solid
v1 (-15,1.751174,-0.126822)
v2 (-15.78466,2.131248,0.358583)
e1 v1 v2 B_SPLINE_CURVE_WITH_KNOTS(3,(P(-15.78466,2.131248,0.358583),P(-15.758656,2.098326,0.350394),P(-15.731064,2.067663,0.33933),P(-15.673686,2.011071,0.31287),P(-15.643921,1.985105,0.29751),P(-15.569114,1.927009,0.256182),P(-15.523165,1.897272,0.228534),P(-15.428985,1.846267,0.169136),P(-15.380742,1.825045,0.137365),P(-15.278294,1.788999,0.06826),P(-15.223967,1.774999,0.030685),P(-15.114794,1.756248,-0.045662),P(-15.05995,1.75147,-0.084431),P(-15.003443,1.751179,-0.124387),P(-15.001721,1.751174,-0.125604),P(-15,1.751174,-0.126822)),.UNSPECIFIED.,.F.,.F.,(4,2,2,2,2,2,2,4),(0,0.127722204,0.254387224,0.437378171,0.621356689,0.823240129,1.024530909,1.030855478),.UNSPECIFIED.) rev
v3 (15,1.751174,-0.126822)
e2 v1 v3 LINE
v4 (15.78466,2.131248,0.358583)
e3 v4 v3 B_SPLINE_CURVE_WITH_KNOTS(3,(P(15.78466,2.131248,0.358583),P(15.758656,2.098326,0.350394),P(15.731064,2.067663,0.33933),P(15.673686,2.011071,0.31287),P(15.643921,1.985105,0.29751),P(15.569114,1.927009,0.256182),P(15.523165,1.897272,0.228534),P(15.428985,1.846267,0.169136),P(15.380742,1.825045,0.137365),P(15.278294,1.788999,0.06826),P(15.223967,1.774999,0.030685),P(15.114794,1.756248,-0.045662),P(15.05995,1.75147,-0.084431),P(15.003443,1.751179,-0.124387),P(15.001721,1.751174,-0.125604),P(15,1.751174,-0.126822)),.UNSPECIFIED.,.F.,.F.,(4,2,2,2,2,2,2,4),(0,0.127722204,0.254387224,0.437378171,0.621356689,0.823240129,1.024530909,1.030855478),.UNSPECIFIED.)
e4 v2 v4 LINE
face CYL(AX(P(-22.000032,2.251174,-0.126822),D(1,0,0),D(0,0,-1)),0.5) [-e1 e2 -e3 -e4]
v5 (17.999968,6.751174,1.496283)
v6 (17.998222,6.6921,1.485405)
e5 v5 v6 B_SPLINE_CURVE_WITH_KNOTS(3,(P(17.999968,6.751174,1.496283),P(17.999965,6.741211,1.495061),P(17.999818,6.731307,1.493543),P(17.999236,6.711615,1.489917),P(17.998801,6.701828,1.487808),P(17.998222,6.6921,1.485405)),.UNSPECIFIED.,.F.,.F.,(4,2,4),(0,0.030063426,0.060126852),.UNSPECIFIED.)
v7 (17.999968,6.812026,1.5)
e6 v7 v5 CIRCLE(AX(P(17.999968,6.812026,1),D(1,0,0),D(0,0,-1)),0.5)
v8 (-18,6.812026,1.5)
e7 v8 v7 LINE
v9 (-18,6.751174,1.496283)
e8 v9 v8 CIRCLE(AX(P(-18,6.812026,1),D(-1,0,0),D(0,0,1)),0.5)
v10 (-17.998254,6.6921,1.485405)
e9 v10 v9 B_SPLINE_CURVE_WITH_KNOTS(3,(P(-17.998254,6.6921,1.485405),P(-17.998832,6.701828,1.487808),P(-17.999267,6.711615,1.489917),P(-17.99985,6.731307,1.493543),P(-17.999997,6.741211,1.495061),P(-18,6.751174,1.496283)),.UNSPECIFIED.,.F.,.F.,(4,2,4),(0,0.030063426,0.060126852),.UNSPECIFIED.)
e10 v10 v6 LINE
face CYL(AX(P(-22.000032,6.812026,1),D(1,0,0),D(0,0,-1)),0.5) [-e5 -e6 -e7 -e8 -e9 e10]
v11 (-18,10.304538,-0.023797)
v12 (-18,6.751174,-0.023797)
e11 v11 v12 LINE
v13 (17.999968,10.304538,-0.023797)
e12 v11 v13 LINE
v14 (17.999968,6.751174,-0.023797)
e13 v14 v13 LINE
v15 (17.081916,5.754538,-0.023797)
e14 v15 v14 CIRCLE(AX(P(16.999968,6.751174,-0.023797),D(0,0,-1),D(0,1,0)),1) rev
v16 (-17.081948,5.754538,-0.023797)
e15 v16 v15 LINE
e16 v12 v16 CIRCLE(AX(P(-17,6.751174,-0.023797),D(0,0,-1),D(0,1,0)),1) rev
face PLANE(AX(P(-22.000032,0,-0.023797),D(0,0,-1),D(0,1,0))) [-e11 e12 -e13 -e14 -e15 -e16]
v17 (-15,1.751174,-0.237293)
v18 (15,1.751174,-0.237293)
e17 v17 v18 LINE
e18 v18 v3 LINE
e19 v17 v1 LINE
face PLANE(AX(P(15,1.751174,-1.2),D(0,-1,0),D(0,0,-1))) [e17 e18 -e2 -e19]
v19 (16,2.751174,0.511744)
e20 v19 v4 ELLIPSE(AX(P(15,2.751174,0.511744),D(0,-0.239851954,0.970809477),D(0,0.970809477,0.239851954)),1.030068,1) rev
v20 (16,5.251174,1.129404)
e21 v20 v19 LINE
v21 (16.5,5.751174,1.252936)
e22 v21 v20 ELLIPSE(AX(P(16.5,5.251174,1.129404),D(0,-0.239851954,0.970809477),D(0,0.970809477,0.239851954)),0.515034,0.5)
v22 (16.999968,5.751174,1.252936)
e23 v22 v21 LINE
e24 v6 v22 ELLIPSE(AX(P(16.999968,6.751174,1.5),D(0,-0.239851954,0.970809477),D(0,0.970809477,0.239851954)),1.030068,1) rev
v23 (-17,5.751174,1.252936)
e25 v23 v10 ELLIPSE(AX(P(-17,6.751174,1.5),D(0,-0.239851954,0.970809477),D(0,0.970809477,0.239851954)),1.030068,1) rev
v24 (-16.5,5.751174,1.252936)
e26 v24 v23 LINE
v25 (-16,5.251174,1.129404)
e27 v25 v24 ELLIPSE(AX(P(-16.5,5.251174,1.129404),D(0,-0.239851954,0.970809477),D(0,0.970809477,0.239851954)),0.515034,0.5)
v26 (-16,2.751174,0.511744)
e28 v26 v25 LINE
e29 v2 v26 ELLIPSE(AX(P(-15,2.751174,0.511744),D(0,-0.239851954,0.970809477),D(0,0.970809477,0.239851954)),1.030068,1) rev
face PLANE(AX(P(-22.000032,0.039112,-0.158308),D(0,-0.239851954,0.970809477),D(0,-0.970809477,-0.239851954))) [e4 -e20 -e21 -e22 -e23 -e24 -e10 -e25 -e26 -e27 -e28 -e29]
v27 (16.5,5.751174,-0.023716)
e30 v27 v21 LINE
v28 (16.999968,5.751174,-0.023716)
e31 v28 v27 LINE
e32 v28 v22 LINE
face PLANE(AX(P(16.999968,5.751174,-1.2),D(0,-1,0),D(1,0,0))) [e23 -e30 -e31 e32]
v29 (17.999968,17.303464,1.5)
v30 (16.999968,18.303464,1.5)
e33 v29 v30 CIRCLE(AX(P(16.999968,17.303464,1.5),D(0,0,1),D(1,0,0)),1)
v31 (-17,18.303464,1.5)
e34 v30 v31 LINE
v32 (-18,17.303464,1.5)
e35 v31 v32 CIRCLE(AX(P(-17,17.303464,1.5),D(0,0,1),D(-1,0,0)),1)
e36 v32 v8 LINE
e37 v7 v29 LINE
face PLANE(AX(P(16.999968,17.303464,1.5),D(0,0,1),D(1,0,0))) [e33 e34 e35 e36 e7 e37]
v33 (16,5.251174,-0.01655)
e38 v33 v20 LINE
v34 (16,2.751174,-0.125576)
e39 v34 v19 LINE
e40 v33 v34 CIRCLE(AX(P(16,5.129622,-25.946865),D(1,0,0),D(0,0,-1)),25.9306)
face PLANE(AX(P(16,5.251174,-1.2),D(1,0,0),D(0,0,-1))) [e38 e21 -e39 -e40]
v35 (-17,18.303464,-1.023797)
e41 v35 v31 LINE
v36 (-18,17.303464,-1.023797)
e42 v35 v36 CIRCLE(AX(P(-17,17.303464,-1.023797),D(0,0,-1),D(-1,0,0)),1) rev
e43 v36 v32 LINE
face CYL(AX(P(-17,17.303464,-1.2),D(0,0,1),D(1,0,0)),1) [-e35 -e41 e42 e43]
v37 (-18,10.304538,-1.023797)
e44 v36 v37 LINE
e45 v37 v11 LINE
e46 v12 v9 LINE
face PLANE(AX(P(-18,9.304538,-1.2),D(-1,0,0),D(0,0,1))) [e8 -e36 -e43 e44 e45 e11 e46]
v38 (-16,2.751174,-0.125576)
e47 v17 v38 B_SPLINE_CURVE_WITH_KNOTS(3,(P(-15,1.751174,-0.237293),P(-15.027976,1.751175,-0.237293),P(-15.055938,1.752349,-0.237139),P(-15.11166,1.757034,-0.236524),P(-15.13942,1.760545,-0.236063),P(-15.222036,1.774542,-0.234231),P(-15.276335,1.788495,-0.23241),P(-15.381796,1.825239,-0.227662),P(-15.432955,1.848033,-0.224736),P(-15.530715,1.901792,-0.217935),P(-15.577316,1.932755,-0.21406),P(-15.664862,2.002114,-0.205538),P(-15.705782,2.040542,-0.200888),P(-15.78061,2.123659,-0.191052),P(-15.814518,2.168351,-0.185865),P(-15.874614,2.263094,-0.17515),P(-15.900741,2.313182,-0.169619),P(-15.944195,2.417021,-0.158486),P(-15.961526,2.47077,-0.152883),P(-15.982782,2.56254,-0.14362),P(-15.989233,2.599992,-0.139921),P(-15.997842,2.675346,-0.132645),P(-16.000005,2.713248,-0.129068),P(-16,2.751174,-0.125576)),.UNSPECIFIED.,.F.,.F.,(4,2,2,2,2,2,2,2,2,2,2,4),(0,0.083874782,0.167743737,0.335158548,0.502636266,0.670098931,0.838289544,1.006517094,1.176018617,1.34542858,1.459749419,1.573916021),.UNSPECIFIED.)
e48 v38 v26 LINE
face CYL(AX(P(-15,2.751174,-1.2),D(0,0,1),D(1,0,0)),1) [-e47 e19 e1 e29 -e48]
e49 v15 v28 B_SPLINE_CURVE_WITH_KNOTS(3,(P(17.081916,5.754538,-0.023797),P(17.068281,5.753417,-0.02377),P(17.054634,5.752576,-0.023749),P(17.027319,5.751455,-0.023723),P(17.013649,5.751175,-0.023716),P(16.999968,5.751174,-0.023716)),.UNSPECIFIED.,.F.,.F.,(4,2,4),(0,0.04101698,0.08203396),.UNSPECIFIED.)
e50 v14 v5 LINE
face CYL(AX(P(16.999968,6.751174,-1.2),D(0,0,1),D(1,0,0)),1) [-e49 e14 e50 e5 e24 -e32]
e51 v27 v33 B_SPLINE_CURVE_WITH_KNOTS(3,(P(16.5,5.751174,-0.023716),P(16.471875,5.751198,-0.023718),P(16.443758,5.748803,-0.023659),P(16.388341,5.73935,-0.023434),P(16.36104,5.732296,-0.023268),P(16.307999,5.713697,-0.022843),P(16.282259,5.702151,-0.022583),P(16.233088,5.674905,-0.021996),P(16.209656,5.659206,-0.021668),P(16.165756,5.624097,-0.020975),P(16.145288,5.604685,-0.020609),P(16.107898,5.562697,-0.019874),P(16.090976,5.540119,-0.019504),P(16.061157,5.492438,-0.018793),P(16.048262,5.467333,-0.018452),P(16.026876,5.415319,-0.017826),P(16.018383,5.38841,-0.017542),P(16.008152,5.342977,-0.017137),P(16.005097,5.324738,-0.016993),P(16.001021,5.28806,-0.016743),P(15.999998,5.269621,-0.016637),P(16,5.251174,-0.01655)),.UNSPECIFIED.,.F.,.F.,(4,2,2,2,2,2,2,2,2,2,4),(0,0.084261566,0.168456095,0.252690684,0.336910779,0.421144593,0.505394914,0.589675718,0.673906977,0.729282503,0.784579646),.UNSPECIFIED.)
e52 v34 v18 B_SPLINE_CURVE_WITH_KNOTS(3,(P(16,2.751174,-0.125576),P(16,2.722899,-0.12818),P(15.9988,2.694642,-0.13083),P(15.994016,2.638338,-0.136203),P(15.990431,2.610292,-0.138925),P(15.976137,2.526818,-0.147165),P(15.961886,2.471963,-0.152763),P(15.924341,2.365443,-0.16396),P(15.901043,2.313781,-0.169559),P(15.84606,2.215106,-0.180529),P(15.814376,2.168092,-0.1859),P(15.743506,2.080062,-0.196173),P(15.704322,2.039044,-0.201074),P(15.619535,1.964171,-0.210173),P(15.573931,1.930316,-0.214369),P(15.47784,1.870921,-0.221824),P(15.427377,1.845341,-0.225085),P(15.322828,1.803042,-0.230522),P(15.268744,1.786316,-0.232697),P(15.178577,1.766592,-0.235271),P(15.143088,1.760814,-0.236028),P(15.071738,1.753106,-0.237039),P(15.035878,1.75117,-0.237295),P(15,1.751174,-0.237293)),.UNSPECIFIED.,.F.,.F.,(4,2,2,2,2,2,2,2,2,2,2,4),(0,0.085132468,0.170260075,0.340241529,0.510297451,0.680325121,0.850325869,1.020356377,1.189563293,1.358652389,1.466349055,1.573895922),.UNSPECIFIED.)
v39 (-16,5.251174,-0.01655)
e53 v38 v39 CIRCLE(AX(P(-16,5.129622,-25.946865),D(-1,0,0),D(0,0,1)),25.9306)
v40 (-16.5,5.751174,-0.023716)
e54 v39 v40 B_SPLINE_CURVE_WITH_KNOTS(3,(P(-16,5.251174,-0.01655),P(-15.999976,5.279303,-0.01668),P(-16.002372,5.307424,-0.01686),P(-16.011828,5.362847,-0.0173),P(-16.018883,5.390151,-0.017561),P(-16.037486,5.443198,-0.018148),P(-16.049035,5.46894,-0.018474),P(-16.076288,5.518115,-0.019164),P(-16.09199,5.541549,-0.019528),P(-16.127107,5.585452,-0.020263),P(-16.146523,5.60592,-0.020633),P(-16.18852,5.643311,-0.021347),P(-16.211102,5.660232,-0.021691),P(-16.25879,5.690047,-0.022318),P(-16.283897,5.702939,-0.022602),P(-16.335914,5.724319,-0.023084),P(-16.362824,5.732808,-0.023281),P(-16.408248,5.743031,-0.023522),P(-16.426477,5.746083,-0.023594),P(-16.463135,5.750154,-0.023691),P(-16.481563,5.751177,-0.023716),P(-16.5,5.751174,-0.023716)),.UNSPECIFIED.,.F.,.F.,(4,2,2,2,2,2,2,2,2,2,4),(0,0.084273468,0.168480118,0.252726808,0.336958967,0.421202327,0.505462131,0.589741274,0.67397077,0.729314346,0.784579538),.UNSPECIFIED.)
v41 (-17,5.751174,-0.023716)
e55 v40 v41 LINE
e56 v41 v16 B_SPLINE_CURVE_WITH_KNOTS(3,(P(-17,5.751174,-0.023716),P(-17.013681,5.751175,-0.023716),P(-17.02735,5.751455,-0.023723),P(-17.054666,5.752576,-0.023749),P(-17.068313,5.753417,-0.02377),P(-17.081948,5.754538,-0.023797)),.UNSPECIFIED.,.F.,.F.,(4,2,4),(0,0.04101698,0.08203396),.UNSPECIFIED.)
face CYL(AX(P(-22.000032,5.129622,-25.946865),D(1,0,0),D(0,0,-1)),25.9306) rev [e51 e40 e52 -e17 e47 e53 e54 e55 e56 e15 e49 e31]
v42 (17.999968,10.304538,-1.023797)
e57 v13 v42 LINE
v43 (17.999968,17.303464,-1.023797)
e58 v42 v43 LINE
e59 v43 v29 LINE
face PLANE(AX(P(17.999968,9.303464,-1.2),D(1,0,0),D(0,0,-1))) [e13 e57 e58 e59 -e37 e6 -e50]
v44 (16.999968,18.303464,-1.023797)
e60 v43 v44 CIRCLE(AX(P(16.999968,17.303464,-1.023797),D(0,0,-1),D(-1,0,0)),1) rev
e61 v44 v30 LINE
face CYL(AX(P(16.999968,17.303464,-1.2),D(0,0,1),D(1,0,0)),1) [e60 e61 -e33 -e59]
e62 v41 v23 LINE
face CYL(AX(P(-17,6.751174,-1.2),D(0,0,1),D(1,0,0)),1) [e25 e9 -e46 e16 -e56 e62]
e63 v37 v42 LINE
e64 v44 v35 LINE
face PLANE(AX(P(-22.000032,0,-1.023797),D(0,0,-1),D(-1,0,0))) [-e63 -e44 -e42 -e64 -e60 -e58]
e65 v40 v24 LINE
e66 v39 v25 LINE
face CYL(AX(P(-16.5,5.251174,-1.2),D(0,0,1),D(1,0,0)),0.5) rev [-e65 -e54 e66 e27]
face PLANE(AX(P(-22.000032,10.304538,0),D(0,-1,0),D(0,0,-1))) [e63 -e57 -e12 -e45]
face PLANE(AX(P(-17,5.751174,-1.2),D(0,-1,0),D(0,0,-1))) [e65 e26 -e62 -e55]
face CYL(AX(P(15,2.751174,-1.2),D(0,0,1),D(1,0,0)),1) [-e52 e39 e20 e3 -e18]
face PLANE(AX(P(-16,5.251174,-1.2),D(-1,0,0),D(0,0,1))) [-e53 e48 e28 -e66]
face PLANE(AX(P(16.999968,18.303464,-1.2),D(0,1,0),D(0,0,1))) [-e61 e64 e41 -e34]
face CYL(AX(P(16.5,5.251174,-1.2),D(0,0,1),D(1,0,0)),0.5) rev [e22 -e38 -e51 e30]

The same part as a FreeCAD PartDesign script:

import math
import FreeCAD as App
import Part
import Sketcher
from FreeCAD import Vector

doc = App.newDocument("Part")
params = doc.addObject("Spreadsheet::Sheet", "Params")
for row, (alias, value) in enumerate([
    ("sketch1_radius", "1 mm"),
    ("sketch1_radius2", "0.5 mm"),
    ("sketch1_width", "30 mm"),
    ("sketch1_width2", "0.5 mm"),
    ("sketch1_height", "2.5 mm"),
    ("pad1_length", "1.5 mm"),
    ("pad1_length2", "1.2 mm"),
    ("sketch2_radius", "0.5 mm"),
    ("sketch2_height", "1 mm"),
    ("sketch2_width", "4.55 mm"),
    ("pocket1_length", "40 mm"),
], start=1):
    params.set(f"A{row}", alias)
    params.set(f"B{row}", "=" + value)
    params.setAlias(f"B{row}", alias)

body = doc.addObject("PartDesign::Body", "Body")

sketch1 = body.newObject("Sketcher::SketchObject", "Sketch")
sketch1.AttachmentSupport = (doc.getObject("XY_Plane"), [""])
sketch1.MapMode = "FlatFace"
sketch1.addGeometry([
    Part.ArcOfCircle(Part.Circle(Vector(-17, 17.3, 0), Vector(0, 0, 1), 1), math.radians(90), math.radians(180)),
    Part.LineSegment(Vector(-18, 17.3, 0), Vector(-18, 6.75, 0)),
    Part.ArcOfCircle(Part.Circle(Vector(-17, 6.75, 0), Vector(0, 0, 1), 1), math.radians(-180), math.radians(-90)),
    Part.LineSegment(Vector(-17, 5.75, 0), Vector(-16.5, 5.75, 0)),
    Part.ArcOfCircle(Part.Circle(Vector(-16.5, 5.25, 0), Vector(0, 0, 1), 0.5), math.radians(0), math.radians(90)),
    Part.LineSegment(Vector(-16, 5.25, 0), Vector(-16, 2.75, 0)),
    Part.ArcOfCircle(Part.Circle(Vector(-15, 2.75, 0), Vector(0, 0, 1), 1), math.radians(-180), math.radians(-90)),
    Part.LineSegment(Vector(-15, 1.75, 0), Vector(15, 1.75, 0)),
    Part.ArcOfCircle(Part.Circle(Vector(15, 2.75, 0), Vector(0, 0, 1), 1), math.radians(-90), math.radians(0)),
    Part.LineSegment(Vector(16, 2.75, 0), Vector(16, 5.25, 0)),
    Part.ArcOfCircle(Part.Circle(Vector(16.5, 5.25, 0), Vector(0, 0, 1), 0.5), math.radians(90), math.radians(180)),
    Part.LineSegment(Vector(16.5, 5.75, 0), Vector(17, 5.75, 0)),
    Part.ArcOfCircle(Part.Circle(Vector(17, 6.75, 0), Vector(0, 0, 1), 1), math.radians(-90), math.radians(0)),
    Part.LineSegment(Vector(18, 6.75, 0), Vector(18, 17.3, 0)),
    Part.ArcOfCircle(Part.Circle(Vector(17, 17.3, 0), Vector(0, 0, 1), 1), math.radians(0), math.radians(90)),
    Part.LineSegment(Vector(17, 18.3, 0), Vector(-17, 18.3, 0)),
], False)
sketch1.addConstraint([
    Sketcher.Constraint("Tangent", 0, 2, 1, 1),
    Sketcher.Constraint("Tangent", 1, 2, 2, 1),
    Sketcher.Constraint("Tangent", 2, 2, 3, 1),
    Sketcher.Constraint("Tangent", 3, 2, 4, 2),
    Sketcher.Constraint("Tangent", 4, 1, 5, 1),
    Sketcher.Constraint("Tangent", 5, 2, 6, 1),
    Sketcher.Constraint("Tangent", 6, 2, 7, 1),
    Sketcher.Constraint("Tangent", 7, 2, 8, 1),
    Sketcher.Constraint("Tangent", 8, 2, 9, 1),
    Sketcher.Constraint("Tangent", 9, 2, 10, 2),
    Sketcher.Constraint("Tangent", 10, 1, 11, 1),
    Sketcher.Constraint("Tangent", 11, 2, 12, 1),
    Sketcher.Constraint("Tangent", 12, 2, 13, 1),
    Sketcher.Constraint("Tangent", 13, 2, 14, 1),
    Sketcher.Constraint("Tangent", 14, 2, 15, 1),
    Sketcher.Constraint("Tangent", 15, 2, 0, 1),
    Sketcher.Constraint("Vertical", 1),
    Sketcher.Constraint("Horizontal", 3),
    Sketcher.Constraint("Vertical", 5),
    Sketcher.Constraint("Horizontal", 7),
    Sketcher.Constraint("Vertical", 9),
    Sketcher.Constraint("Horizontal", 11),
    Sketcher.Constraint("Vertical", 13),
    Sketcher.Constraint("Horizontal", 15),
    Sketcher.Constraint("Equal", 0, 2),
    Sketcher.Constraint("Equal", 2, 6),
    Sketcher.Constraint("Equal", 6, 8),
    Sketcher.Constraint("Equal", 4, 10),
    Sketcher.Constraint("Equal", 8, 12),
    Sketcher.Constraint("Equal", 12, 14),
    Sketcher.Constraint("Symmetric", 4, 3, 10, 3, -2),
    Sketcher.Constraint("Radius", 0, 1.0),
    Sketcher.Constraint("Radius", 4, 0.5),
    Sketcher.Constraint("DistanceX", 7, 1, 7, 2, 30.0),
    Sketcher.Constraint("DistanceX", 3, 1, 3, 2, 0.5),
    Sketcher.Constraint("DistanceY", 5, 2, 5, 1, 2.5),
    Sketcher.Constraint("DistanceX", 11, 1, 11, 2, 0.499968),
    Sketcher.Constraint("DistanceY", 1, 2, 1, 1, 10.55229),
    Sketcher.Constraint("DistanceY", -1, 1, 0, 3, 17.303464),
])
sketch1.setExpression("Constraints[31]", "Params.sketch1_radius")
sketch1.setExpression("Constraints[32]", "Params.sketch1_radius2")
sketch1.setExpression("Constraints[33]", "Params.sketch1_width")
sketch1.setExpression("Constraints[34]", "Params.sketch1_width2")
sketch1.setExpression("Constraints[35]", "Params.sketch1_height")
pad1 = body.newObject("PartDesign::Pad", "Pad")
pad1.Profile = sketch1
pad1.Type = "TwoLengths"
pad1.setExpression("Length", "Params.pad1_length")
pad1.setExpression("Length2", "Params.pad1_length2")

sketch2 = body.newObject("Sketcher::SketchObject", "Sketch001")
sketch2.AttachmentSupport = (doc.getObject("YZ_Plane"), [""])
sketch2.MapMode = "FlatFace"
sketch2.AttachmentOffset = App.Placement(Vector(0, 0, 17.999968), App.Rotation())
sketch2.addGeometry([
    Part.ArcOfCircle(Part.Circle(Vector(5.13, -25.95, 0), Vector(0, 0, 1), 25.93), math.radians(88.62), math.radians(97.49)),
    Part.LineSegment(Vector(1.75, -0.24, 0), Vector(1.75, -1.27, 0)),
    Part.LineSegment(Vector(1.75, -1.27, 0), Vector(10.31, -1.27, 0)),
    Part.ArcOfCircle(Part.Circle(Vector(16.49, -1.02, 0), Vector(0, 0, 1), 6.19), math.radians(-178), math.radians(0)),
    Part.LineSegment(Vector(22.68, -1.02, 0), Vector(10.3, -1.02, 0)),
    Part.LineSegment(Vector(10.3, -1.02, 0), Vector(10.3, -0.02, 0)),
    Part.LineSegment(Vector(10.3, -0.02, 0), Vector(5.75, -0.02, 0)),
    Part.ArcOfCircle(Part.Circle(Vector(6.81, 1, 0), Vector(0, 0, 1), 0.5), math.radians(96.99), math.radians(103.88)),
    Part.ArcOfCircle(Part.Circle(Vector(6.81, 1, 0), Vector(0, 0, 1), 0.5), math.radians(90), math.radians(96.99)),
    Part.LineSegment(Vector(6.81, 1.5, 0), Vector(1.75, 1.5, 0)),
    Part.LineSegment(Vector(1.75, 1.5, 0), Vector(1.75, -0.13, 0)),
    Part.ArcOfCircle(Part.Circle(Vector(2.25, -0.13, 0), Vector(0, 0, 1), 0.5), math.radians(104), math.radians(180)),
    Part.LineSegment(Vector(2.13, 0.36, 0), Vector(6.69, 1.49, 0)),
], False)
sketch2.addConstraint([
    Sketcher.Constraint("Coincident", 0, 2, 1, 1),
    Sketcher.Constraint("Coincident", 1, 2, 2, 1),
    Sketcher.Constraint("Coincident", 2, 2, 3, 1),
    Sketcher.Constraint("Coincident", 3, 2, 4, 1),
    Sketcher.Constraint("Coincident", 4, 2, 5, 1),
    Sketcher.Constraint("Coincident", 5, 2, 6, 1),
    Sketcher.Constraint("Coincident", 6, 2, 0, 1),
    Sketcher.Constraint("Tangent", 7, 1, 8, 2),
    Sketcher.Constraint("Tangent", 8, 1, 9, 1),
    Sketcher.Constraint("Coincident", 9, 2, 10, 1),
    Sketcher.Constraint("Tangent", 10, 2, 11, 2),
    Sketcher.Constraint("Tangent", 11, 1, 12, 1),
    Sketcher.Constraint("Tangent", 12, 2, 7, 2),
    Sketcher.Constraint("Vertical", 1),
    Sketcher.Constraint("Horizontal", 2),
    Sketcher.Constraint("Horizontal", 4),
    Sketcher.Constraint("Vertical", 5),
    Sketcher.Constraint("Horizontal", 6),
    Sketcher.Constraint("Horizontal", 9),
    Sketcher.Constraint("Vertical", 10),
    Sketcher.Constraint("Equal", 7, 8),
    Sketcher.Constraint("Equal", 8, 11),
    Sketcher.Constraint("Vertical", 1, 2, 9, 2),
    Sketcher.Constraint("Radius", 7, 0.5),
    Sketcher.Constraint("DistanceY", 5, 1, 5, 2, 1.0),
    Sketcher.Constraint("DistanceY", -1, 1, 7, 3, 1.0),
    Sketcher.Constraint("DistanceY", 3, 3, 5, 2, 1.0),
    Sketcher.Constraint("DistanceX", 9, 2, 7, 1, 5.0),
    Sketcher.Constraint("DistanceX", 6, 2, 6, 1, 4.55),
    Sketcher.Constraint("Radius", 0, 25.9306),
    Sketcher.Constraint("Radius", 3, 6.190309),
    Sketcher.Constraint("DistanceX", 9, 2, 9, 1, 5.060851),
    Sketcher.Constraint("DistanceY", 10, 2, 10, 1, 1.626822),
    Sketcher.Constraint("DistanceX", -1, 1, 12, 2, 6.6921),
    Sketcher.Constraint("DistanceY", 6, 2, 12, 2, 1.509201),
    Sketcher.Constraint("DistanceX", 2, 1, 2, 2, 8.553904),
    Sketcher.Constraint("DistanceX", 4, 2, 4, 1, 12.376225),
    Sketcher.Constraint("DistanceY", 1, 2, 1, 1, 1.033596),
    Sketcher.Constraint("DistanceX", -1, 1, 0, 3, 5.129622),
])
sketch2.setExpression("Constraints[23]", "Params.sketch2_radius")
sketch2.setExpression("Constraints[24]", "Params.sketch2_height")
sketch2.setExpression("Constraints[28]", "Params.sketch2_width")
pocket1 = body.newObject("PartDesign::Pocket", "Pocket")
pocket1.Profile = sketch2
pocket1.setExpression("Length", "Params.pocket1_length")

doc.recompute()
